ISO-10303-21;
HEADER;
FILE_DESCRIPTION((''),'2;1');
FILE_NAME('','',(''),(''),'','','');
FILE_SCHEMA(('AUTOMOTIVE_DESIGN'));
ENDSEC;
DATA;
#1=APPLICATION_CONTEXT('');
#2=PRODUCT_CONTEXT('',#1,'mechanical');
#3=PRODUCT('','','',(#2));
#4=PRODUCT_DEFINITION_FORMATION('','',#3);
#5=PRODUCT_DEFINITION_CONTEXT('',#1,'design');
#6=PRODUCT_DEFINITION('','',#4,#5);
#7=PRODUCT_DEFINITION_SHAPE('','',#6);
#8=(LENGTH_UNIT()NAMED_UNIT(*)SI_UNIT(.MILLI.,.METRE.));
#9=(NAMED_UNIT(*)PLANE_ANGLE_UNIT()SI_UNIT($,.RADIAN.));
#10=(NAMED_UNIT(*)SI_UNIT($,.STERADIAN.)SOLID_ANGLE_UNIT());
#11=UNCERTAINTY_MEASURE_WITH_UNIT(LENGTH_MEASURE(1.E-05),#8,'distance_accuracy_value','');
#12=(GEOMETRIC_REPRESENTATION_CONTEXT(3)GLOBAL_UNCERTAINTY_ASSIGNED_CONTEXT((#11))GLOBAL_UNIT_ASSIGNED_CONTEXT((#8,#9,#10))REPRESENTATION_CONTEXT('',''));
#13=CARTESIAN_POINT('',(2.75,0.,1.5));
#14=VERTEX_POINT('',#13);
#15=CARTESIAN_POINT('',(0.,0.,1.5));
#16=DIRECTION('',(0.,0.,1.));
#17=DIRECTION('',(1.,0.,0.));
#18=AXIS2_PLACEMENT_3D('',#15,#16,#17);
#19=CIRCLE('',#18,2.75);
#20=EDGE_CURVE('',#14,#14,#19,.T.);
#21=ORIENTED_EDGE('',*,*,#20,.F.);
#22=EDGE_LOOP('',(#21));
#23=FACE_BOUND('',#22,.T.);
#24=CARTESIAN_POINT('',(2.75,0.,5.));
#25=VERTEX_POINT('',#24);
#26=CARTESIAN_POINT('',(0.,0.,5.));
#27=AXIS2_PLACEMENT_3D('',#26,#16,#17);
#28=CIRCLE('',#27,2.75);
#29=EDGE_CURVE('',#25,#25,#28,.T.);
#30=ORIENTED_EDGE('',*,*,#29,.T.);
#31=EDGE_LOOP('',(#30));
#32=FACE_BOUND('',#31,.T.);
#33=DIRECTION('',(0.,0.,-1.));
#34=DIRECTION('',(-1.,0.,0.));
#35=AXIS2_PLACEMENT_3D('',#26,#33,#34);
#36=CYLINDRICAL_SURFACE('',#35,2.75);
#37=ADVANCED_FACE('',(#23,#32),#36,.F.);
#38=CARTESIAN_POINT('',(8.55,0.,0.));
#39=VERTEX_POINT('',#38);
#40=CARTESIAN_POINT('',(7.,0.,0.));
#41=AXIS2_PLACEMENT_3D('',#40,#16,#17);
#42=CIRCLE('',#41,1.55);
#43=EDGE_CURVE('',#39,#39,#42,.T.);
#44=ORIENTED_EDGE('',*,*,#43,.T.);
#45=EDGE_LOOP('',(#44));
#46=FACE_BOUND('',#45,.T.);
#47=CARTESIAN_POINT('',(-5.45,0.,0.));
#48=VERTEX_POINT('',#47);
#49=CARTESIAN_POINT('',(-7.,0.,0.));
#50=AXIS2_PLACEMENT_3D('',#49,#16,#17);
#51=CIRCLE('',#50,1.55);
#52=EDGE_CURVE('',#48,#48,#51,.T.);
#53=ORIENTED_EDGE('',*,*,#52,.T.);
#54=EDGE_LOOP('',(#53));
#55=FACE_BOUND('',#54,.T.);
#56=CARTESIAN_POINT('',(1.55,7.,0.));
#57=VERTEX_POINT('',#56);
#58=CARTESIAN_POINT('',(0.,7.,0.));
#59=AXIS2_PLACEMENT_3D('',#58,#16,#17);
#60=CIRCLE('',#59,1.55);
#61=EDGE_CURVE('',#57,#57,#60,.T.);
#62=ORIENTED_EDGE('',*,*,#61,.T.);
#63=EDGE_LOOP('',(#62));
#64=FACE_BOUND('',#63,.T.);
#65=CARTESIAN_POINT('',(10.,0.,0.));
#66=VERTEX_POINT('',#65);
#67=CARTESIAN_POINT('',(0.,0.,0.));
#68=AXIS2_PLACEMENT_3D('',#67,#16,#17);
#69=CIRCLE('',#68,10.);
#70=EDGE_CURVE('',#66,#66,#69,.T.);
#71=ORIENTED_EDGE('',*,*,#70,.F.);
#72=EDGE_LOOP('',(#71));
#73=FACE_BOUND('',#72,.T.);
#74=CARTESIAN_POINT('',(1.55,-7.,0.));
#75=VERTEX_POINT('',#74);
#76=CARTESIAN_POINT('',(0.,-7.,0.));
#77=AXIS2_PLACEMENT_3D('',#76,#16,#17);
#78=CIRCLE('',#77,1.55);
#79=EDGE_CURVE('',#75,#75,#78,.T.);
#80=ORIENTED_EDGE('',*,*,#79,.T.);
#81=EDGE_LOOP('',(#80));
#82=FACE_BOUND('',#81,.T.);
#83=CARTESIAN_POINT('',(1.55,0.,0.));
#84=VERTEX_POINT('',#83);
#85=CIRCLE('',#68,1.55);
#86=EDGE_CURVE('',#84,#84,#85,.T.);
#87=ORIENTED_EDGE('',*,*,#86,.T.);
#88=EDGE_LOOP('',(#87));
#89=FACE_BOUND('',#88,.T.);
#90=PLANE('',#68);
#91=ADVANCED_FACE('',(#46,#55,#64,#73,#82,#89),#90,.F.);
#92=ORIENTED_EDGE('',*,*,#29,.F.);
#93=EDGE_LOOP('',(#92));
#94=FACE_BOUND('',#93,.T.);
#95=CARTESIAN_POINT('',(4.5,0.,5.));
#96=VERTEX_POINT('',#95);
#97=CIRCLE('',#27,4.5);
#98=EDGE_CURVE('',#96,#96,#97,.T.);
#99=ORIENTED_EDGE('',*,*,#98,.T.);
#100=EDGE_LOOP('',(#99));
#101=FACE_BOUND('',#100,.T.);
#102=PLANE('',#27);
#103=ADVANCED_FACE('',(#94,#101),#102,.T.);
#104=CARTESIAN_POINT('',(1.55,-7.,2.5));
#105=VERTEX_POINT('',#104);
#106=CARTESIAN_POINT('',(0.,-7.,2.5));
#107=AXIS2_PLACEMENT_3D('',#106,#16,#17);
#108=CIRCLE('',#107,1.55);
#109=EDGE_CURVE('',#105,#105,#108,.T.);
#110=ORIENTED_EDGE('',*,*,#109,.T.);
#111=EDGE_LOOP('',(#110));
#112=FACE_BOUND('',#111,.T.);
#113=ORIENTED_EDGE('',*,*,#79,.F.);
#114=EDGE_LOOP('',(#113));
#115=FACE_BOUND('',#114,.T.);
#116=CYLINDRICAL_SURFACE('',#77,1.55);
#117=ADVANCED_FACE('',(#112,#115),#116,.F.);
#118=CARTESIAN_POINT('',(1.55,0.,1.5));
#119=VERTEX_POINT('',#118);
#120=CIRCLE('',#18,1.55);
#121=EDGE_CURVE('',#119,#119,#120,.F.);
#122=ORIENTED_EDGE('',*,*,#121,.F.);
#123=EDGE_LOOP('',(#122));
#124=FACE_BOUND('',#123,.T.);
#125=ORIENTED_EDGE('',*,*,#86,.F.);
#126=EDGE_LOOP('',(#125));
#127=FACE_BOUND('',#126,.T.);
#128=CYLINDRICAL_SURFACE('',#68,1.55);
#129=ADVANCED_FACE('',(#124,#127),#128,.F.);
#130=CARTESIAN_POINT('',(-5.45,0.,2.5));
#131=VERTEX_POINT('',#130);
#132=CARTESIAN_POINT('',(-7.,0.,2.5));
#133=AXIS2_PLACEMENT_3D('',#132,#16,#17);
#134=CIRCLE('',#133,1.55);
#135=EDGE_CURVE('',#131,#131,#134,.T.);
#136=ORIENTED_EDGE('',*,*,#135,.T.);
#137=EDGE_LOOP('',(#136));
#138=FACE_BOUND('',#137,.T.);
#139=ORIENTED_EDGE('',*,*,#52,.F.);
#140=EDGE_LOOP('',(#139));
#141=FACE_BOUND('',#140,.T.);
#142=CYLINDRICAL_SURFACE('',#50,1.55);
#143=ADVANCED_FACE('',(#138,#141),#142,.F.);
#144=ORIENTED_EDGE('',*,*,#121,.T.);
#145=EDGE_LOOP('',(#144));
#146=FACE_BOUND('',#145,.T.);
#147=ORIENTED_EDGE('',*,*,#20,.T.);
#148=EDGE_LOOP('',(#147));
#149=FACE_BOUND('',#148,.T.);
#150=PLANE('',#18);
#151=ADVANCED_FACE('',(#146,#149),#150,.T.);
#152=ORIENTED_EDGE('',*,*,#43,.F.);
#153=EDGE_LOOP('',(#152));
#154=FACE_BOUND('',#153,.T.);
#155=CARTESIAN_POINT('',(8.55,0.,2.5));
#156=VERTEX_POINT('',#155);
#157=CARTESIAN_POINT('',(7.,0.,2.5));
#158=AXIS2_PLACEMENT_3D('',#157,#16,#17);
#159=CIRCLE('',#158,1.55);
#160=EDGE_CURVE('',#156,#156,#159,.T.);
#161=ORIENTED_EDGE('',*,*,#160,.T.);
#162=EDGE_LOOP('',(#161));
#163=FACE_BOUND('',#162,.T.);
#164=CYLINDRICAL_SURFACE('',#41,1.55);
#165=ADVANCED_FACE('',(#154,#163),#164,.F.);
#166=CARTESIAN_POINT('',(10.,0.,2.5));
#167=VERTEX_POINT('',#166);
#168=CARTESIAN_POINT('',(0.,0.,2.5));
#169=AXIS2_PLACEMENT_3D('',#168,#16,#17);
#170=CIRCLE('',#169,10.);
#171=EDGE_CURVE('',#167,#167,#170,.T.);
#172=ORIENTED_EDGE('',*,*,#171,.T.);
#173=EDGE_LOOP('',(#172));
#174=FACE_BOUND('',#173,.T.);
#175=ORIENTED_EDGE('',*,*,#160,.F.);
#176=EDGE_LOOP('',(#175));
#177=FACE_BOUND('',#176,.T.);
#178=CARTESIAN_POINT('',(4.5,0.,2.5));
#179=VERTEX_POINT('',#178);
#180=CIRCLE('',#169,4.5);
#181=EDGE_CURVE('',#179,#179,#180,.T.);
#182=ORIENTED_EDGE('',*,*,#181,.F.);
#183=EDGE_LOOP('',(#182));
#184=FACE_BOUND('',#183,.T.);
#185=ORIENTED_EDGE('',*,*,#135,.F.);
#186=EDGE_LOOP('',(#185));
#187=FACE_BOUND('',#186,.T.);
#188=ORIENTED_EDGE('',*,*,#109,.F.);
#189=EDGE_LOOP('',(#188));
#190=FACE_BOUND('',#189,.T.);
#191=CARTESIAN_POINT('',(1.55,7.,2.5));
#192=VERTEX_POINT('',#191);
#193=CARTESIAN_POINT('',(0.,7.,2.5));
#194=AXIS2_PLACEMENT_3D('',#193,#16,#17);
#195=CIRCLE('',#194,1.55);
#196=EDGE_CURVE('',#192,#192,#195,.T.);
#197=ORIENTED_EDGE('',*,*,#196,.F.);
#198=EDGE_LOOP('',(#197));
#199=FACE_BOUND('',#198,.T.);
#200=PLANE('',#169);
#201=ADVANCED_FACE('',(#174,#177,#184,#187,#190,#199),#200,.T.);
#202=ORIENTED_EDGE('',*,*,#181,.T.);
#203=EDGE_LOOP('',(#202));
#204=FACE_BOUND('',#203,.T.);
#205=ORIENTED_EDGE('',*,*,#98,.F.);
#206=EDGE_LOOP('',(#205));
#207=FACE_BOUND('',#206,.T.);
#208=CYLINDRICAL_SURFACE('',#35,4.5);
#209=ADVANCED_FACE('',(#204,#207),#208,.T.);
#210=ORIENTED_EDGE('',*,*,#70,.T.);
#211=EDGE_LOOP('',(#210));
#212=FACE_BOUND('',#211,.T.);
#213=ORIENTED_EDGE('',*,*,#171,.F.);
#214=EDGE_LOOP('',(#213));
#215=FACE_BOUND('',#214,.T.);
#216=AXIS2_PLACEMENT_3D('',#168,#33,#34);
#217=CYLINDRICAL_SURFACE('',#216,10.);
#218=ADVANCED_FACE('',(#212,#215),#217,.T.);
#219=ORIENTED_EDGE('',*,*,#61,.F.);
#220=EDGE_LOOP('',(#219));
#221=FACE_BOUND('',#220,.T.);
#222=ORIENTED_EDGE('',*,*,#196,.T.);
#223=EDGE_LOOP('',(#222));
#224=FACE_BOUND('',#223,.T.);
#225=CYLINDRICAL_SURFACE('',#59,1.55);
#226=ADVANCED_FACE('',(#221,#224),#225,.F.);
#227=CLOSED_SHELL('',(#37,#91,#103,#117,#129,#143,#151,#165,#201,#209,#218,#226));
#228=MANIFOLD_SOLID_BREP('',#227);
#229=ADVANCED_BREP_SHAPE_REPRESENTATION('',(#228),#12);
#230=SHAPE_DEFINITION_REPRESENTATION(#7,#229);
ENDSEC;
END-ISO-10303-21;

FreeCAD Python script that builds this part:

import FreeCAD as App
import Part
import Sketcher

V = App.Vector

doc = App.newDocument("Part")
body = doc.addObject("PartDesign::Body", "Body")

sketch1 = doc.addObject("Sketcher::SketchObject", "Sketch")
body.addObject(sketch1)
sketch1.AttachmentSupport = (doc.XY_Plane, [""])
sketch1.MapMode = "FlatFace"
sketch1.addGeometry(Part.Circle(V(0, 0, 0), V(0, 0, 1), 10), False)
sketch1.addConstraint([
    Sketcher.Constraint("Coincident", 0, 3, -1, 1),
    Sketcher.Constraint("Diameter", 0, 20.0),
])
pad1 = doc.addObject("PartDesign::Pad", "Pad")
body.addObject(pad1)
pad1.Profile = sketch1
pad1.Length = 2.5

sketch2 = doc.addObject("Sketcher::SketchObject", "Sketch001")
body.addObject(sketch2)
sketch2.AttachmentSupport = (doc.XY_Plane, [""])
sketch2.MapMode = "FlatFace"
sketch2.AttachmentOffset = App.Placement(V(0, 0, 2.5), App.Rotation())
sketch2.addGeometry([
    Part.Circle(V(0, 0, 0), V(0, 0, 1), 4.5),
    Part.Circle(V(0, 0, 0), V(0, 0, 1), 2.8),
], False)
sketch2.addConstraint([
    Sketcher.Constraint("Coincident", 0, 3, -1, 1),
    Sketcher.Constraint("Coincident", 1, 3, -1, 1),
    Sketcher.Constraint("Diameter", 0, 9.0),
    Sketcher.Constraint("Diameter", 1, 5.5),
])
pad2 = doc.addObject("PartDesign::Pad", "Pad001")
body.addObject(pad2)
pad2.Profile = sketch2
pad2.Length = 2.5

sketch3 = doc.addObject("Sketcher::SketchObject", "Sketch002")
body.addObject(sketch3)
sketch3.AttachmentSupport = (doc.XY_Plane, [""])
sketch3.MapMode = "FlatFace"
sketch3.AttachmentOffset = App.Placement(V(0, 0, 2.5), App.Rotation())
sketch3.addGeometry([
    Part.Circle(V(0, 0, 0), V(0, 0, 1), 1.6),
    Part.Circle(V(7, 0, 0), V(0, 0, 1), 1.6),
    Part.Circle(V(0, 7, 0), V(0, 0, 1), 1.6),
    Part.Circle(V(-7, 0, 0), V(0, 0, 1), 1.6),
    Part.Circle(V(0, -7, 0), V(0, 0, 1), 1.6),
], False)
sketch3.addConstraint([
    Sketcher.Constraint("Coincident", 0, 3, -1, 1),
    Sketcher.Constraint("Equal", 0, 1),
    Sketcher.Constraint("Equal", 1, 2),
    Sketcher.Constraint("Equal", 2, 3),
    Sketcher.Constraint("Equal", 3, 4),
    Sketcher.Constraint("Symmetric", 1, 3, 3, 3, -1, 1),
    Sketcher.Constraint("Symmetric", 2, 3, 4, 3, -1, 1),
    Sketcher.Constraint("PointOnObject", 1, 3, -1),
    Sketcher.Constraint("PointOnObject", 2, 3, -2),
    Sketcher.Constraint("Diameter", 0, 3.1),
    Sketcher.Constraint("DistanceX", -1, 1, 1, 3, 7.0),
    Sketcher.Constraint("DistanceY", -1, 1, 2, 3, 7.0),
])
pocket1 = doc.addObject("PartDesign::Pocket", "Pocket")
body.addObject(pocket1)
pocket1.Profile = sketch3
pocket1.Type = "ThroughAll"
pocket1.Midplane = True

sketch4 = doc.addObject("Sketcher::SketchObject", "Sketch003")
body.addObject(sketch4)
sketch4.AttachmentSupport = (doc.XY_Plane, [""])
sketch4.MapMode = "FlatFace"
sketch4.AttachmentOffset = App.Placement(V(0, 0, 1.5), App.Rotation())
sketch4.addGeometry(Part.Circle(V(0, 0, 0), V(0, 0, 1), 2.8), False)
sketch4.addConstraint([
    Sketcher.Constraint("Coincident", 0, 3, -1, 1),
    Sketcher.Constraint("Diameter", 0, 5.5),
])
pocket2 = doc.addObject("PartDesign::Pocket", "Pocket001")
body.addObject(pocket2)
pocket2.Profile = sketch4
pocket2.Length = 1
pocket2.Reversed = True

doc.recompute()
